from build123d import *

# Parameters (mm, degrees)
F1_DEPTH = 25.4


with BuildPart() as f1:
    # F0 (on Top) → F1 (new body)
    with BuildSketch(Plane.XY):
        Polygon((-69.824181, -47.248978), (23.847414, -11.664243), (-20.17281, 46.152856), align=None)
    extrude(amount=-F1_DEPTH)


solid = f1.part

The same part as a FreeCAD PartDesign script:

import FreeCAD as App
import Part
import Sketcher

V = App.Vector
Q = App.Units.Quantity


def add_polygon(sketch, points):
    """Adds a closed chain of lines whose ends are joined by coincident constraints."""
    first, n = sketch.GeometryCount, len(points)
    for a, b in zip(points, points[1:] + points[:1]):
        sketch.addGeometry(Part.LineSegment(App.Vector(*a, 0), App.Vector(*b, 0)), False)
    for i in range(n):
        sketch.addConstraint(Sketcher.Constraint("Coincident", first + i, 2, first + (i + 1) % n, 1))

doc = App.newDocument("Part")
params = doc.addObject("Spreadsheet::Sheet", "Params")
for row, (alias, value) in enumerate([
    ("sketch1_length", "3.945 in"),
    ("pad1_length", "1 in"),
], start=1):
    params.set(f"A{row}", alias)
    params.set(f"B{row}", "=" + value)
    params.setAlias(f"B{row}", alias)

body = doc.addObject("PartDesign::Body", "Body")

sketch1 = body.newObject("Sketcher::SketchObject", "Sketch")
sketch1.AttachmentSupport = (doc.getObject("XY_Plane"), [""])
sketch1.MapMode = "FlatFace"
add_polygon(sketch1, [(-69.824181, -47.248978), (23.847414, -11.664243), (-20.17281, 46.152856)])
sketch1.addConstraint(Sketcher.Constraint("Distance", 0, Q("3.945 in")))
sketch1.addConstraint(Sketcher.Constraint("DistanceY", 0, 2, 1, 2, 57.817099))
sketch1.addConstraint(Sketcher.Constraint("Distance", 2, 105.778832))
sketch1.addConstraint(Sketcher.Constraint("DistanceX", 1, 2, -1, 1, 20.17281))
sketch1.addConstraint(Sketcher.Constraint("DistanceX", 2, 2, -1, 1, 69.824181))
sketch1.addConstraint(Sketcher.Constraint("DistanceY", 0, 2, -1, 1, 11.664243))
sketch1.setExpression("Constraints[3]", "Params.sketch1_length")
pad1 = body.newObject("PartDesign::Pad", "Pad")
pad1.Profile = sketch1
pad1.setExpression("Length", "Params.pad1_length")
pad1.Reversed = True

doc.recompute()
